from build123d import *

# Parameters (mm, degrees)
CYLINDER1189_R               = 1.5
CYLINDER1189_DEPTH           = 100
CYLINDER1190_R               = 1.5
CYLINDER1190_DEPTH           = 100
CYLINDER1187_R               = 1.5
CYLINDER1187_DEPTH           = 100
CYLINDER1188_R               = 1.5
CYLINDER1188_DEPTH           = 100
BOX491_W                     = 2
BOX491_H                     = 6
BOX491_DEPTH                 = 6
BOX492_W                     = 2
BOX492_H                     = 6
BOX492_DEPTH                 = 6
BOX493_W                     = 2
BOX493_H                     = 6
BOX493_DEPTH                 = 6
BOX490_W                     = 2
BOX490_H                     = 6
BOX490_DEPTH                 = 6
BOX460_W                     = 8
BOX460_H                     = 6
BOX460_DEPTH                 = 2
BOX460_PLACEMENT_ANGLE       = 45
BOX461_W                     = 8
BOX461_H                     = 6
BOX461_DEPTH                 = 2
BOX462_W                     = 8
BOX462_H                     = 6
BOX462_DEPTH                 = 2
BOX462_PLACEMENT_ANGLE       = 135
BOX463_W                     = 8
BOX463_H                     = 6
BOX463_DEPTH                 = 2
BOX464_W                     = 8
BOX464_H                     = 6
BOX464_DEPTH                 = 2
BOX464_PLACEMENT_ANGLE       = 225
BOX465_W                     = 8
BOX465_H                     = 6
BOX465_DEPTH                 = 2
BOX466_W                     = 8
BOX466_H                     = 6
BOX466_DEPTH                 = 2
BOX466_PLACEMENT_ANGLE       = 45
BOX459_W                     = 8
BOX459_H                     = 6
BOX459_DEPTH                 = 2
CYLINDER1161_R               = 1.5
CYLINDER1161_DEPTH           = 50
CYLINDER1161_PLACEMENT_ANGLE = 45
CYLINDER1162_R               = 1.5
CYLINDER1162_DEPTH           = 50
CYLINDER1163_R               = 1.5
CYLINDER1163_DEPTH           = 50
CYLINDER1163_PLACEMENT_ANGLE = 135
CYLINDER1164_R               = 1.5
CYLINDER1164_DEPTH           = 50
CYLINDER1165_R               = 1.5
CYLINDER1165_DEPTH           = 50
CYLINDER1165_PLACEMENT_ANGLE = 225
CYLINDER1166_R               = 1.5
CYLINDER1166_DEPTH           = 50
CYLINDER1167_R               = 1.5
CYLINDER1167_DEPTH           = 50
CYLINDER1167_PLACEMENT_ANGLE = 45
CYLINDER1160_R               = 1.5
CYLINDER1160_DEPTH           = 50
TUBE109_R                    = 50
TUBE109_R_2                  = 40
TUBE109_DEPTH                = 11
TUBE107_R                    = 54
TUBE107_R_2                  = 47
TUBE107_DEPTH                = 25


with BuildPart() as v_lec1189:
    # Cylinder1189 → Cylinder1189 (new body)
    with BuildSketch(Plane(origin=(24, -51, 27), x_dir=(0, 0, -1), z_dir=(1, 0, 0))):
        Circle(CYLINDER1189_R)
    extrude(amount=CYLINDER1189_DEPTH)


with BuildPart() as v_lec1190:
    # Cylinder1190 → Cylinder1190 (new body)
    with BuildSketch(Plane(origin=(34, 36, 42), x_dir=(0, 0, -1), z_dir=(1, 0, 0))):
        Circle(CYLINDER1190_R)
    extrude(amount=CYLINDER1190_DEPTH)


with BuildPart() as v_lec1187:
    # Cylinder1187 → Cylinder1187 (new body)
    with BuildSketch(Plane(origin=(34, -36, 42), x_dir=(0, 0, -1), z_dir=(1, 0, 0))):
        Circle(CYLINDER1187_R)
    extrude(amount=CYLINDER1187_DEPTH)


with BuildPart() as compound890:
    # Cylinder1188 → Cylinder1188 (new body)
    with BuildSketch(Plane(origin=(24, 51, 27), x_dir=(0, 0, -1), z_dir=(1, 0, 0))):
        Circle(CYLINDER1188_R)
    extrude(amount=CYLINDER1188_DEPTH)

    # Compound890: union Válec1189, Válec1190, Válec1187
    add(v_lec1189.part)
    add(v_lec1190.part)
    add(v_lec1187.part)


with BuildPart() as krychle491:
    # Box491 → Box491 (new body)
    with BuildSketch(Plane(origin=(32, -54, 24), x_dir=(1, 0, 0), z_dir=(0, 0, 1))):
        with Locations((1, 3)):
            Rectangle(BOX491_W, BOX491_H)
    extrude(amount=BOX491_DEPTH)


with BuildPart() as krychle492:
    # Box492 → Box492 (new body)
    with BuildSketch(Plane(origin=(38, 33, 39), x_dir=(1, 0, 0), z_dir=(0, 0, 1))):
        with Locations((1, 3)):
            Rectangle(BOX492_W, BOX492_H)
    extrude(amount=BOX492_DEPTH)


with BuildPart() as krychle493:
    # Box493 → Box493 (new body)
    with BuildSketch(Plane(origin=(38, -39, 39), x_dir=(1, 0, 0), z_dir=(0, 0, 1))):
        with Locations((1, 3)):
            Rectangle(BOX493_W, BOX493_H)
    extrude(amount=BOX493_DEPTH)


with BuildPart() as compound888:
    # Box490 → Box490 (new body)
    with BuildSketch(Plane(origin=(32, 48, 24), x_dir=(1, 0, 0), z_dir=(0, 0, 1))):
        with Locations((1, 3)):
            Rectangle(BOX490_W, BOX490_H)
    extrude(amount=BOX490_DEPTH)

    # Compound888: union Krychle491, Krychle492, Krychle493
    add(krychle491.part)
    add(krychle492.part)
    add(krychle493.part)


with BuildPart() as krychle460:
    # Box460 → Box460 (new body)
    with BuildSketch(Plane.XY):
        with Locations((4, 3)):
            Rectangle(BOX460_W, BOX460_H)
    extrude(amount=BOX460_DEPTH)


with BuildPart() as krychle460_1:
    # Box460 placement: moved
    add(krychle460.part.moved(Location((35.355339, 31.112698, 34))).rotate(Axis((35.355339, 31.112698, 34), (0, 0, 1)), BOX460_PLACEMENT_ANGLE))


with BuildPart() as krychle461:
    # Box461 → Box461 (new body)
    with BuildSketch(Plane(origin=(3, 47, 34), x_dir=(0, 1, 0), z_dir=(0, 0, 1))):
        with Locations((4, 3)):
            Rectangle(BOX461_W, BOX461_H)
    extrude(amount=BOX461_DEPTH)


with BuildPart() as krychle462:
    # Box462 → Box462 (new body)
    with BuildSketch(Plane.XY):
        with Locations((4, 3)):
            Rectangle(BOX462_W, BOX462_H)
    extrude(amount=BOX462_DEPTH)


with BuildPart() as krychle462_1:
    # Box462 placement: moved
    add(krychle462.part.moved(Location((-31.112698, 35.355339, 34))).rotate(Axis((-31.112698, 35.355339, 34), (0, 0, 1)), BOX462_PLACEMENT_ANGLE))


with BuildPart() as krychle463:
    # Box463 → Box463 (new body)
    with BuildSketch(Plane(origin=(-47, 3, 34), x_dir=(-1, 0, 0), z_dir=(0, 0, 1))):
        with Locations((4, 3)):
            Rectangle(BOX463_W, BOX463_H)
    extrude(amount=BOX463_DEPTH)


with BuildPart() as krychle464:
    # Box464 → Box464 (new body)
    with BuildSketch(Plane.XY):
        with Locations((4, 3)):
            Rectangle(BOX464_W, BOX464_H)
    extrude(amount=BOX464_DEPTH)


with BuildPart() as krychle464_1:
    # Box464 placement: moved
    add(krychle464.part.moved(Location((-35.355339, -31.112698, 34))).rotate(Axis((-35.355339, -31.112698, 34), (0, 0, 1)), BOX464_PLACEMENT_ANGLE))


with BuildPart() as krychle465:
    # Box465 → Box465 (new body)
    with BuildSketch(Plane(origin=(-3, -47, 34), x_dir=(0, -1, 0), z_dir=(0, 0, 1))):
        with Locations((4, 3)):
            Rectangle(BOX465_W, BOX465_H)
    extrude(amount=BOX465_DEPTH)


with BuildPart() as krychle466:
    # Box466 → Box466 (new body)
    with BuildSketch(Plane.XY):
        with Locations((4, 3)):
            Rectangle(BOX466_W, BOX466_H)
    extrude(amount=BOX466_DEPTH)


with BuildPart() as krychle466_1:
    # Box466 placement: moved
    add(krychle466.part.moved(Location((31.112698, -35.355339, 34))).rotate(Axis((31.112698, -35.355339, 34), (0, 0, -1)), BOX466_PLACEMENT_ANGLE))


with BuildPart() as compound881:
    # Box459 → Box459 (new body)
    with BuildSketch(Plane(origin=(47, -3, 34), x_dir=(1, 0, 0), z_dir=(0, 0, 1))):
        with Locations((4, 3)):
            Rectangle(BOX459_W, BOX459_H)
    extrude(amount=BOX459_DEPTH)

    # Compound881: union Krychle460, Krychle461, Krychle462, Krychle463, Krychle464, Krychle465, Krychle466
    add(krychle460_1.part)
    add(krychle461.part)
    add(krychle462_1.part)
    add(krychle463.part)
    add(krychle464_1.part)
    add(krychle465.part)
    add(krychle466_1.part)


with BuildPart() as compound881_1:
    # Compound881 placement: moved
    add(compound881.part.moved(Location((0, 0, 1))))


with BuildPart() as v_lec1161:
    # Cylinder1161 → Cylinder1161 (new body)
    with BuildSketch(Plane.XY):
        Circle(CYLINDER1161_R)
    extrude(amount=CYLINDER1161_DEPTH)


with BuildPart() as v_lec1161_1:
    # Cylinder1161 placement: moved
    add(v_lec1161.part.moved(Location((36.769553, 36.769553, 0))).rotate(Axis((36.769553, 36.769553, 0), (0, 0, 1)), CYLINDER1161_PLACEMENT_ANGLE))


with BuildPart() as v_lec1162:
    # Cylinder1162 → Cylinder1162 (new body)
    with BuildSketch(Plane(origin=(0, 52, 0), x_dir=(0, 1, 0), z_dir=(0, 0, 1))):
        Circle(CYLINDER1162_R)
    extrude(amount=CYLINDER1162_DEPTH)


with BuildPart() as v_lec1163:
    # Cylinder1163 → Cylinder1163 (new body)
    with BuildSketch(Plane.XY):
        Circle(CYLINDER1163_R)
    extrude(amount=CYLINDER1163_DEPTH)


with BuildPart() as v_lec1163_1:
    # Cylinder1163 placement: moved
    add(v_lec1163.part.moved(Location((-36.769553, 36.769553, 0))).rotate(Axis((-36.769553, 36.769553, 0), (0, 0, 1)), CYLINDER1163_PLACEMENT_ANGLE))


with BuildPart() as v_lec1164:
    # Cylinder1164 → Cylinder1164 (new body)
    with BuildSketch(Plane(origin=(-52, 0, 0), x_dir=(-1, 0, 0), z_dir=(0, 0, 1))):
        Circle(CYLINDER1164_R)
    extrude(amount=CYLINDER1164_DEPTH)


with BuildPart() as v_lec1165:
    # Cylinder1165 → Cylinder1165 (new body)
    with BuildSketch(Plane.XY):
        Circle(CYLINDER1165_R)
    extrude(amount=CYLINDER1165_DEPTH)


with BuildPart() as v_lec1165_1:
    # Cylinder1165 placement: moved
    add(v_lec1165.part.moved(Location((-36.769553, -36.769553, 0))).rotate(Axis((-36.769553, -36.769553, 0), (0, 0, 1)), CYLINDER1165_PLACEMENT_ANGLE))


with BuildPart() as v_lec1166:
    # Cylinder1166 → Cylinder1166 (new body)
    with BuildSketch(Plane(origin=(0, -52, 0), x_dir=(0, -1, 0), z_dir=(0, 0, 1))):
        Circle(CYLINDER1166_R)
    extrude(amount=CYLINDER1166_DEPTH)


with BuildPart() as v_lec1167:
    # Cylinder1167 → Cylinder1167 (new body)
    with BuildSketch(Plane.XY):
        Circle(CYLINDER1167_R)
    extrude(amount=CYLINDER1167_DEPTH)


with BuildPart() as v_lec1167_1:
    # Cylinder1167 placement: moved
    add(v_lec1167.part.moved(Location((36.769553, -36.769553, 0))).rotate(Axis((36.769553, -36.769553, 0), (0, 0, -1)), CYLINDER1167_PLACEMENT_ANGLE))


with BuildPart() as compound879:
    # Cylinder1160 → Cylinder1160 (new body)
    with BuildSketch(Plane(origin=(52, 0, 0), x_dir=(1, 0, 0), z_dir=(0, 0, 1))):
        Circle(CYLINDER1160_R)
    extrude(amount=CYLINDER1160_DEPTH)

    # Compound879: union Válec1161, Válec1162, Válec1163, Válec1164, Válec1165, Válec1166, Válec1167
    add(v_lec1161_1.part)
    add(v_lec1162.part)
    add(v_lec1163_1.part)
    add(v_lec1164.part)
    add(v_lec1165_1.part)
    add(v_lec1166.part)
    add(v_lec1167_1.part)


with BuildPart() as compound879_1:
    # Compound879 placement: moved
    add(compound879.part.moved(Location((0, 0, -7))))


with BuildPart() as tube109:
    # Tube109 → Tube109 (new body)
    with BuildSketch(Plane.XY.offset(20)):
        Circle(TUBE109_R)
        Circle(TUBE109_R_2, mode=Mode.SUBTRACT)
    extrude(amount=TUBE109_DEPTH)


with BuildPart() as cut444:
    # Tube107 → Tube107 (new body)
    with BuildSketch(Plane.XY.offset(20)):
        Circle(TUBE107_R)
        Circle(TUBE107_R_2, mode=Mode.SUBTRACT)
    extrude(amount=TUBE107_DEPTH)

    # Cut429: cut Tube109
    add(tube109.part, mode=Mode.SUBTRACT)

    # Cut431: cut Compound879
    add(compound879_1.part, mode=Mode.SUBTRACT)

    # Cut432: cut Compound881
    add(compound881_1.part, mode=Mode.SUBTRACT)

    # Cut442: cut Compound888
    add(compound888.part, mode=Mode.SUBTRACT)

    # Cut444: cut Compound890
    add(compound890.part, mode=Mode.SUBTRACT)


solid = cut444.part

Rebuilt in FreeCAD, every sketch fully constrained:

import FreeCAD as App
import Part
import Sketcher


def add_polygon(sketch, points):
    """Adds a closed chain of lines whose ends are joined by coincident constraints."""
    first, n = sketch.GeometryCount, len(points)
    for a, b in zip(points, points[1:] + points[:1]):
        sketch.addGeometry(Part.LineSegment(App.Vector(*a, 0), App.Vector(*b, 0)), False)
    for i in range(n):
        sketch.addConstraint(Sketcher.Constraint("Coincident", first + i, 2, first + (i + 1) % n, 1))

doc = App.newDocument("Part")
params = doc.addObject("Spreadsheet::Sheet", "Params")
for row, (alias, value) in enumerate([
    ("sketch1_diameter", "3 mm"),
    ("pad1_length", "100 mm"),
    ("sketch2_diameter", "3 mm"),
    ("pad2_length", "100 mm"),
    ("sketch3_diameter", "3 mm"),
    ("pad3_length", "100 mm"),
    ("sketch4_diameter", "3 mm"),
    ("pad4_length", "100 mm"),
    ("sketch5_width", "2 mm"),
    ("sketch5_height", "6 mm"),
    ("pad5_length", "6 mm"),
    ("sketch6_width", "2 mm"),
    ("sketch6_height", "6 mm"),
    ("pad6_length", "6 mm"),
    ("sketch7_width", "2 mm"),
    ("sketch7_height", "6 mm"),
    ("pad7_length", "6 mm"),
    ("sketch8_width", "2 mm"),
    ("sketch8_height", "6 mm"),
    ("pad8_length", "6 mm"),
    ("sketch9_width", "8 mm"),
    ("sketch9_height", "6 mm"),
    ("pad9_length", "2 mm"),
    ("sketch10_width", "6 mm"),
    ("sketch10_height", "8 mm"),
    ("pad10_length", "2 mm"),
    ("sketch11_width", "8 mm"),
    ("sketch11_height", "6 mm"),
    ("pad11_length", "2 mm"),
    ("sketch12_width", "8 mm"),
    ("sketch12_height", "6 mm"),
    ("pad12_length", "2 mm"),
    ("sketch13_width", "8 mm"),
    ("sketch13_height", "6 mm"),
    ("pad13_length", "2 mm"),
    ("sketch14_width", "6 mm"),
    ("sketch14_height", "8 mm"),
    ("pad14_length", "2 mm"),
    ("sketch15_width", "8 mm"),
    ("sketch15_height", "6 mm"),
    ("pad15_length", "2 mm"),
    ("sketch16_width", "8 mm"),
    ("sketch16_height", "6 mm"),
    ("pad16_length", "2 mm"),
    ("sketch17_diameter", "3 mm"),
    ("pad17_length", "50 mm"),
    ("sketch18_diameter", "3 mm"),
    ("pad18_length", "50 mm"),
    ("sketch19_diameter", "3 mm"),
    ("pad19_length", "50 mm"),
    ("sketch20_diameter", "3 mm"),
    ("pad20_length", "50 mm"),
    ("sketch21_diameter", "3 mm"),
    ("pad21_length", "50 mm"),
    ("sketch22_diameter", "3 mm"),
    ("pad22_length", "50 mm"),
    ("sketch23_diameter", "3 mm"),
    ("pad23_length", "50 mm"),
    ("sketch24_diameter", "3 mm"),
    ("pad24_length", "50 mm"),
    ("sketch25_diameter", "100 mm"),
    ("sketch25_diameter2", "80 mm"),
    ("pad25_length", "11 mm"),
    ("sketch26_diameter", "108 mm"),
    ("sketch26_diameter2", "94 mm"),
    ("pad26_length", "25 mm"),
], start=1):
    params.set(f"A{row}", alias)
    params.set(f"B{row}", "=" + value)
    params.setAlias(f"B{row}", alias)

body = doc.addObject("PartDesign::Body", "Body")

sketch1 = body.newObject("Sketcher::SketchObject", "Sketch")
sketch1.AttachmentSupport = (doc.getObject("YZ_Plane"), [""])
sketch1.MapMode = "FlatFace"
sketch1.AttachmentOffset = App.Placement(App.Vector(0, 0, 24), App.Rotation())
sketch1.addGeometry(Part.Circle(App.Vector(-51, 27, 0), App.Vector(0, 0, 1), 1.5), False)
sketch1.addConstraint(Sketcher.Constraint("Diameter", 0, 3.0))
sketch1.addConstraint(Sketcher.Constraint("DistanceX", 0, 3, -1, 1, 51.0))
sketch1.addConstraint(Sketcher.Constraint("DistanceY", -1, 1, 0, 3, 27.0))
sketch1.setExpression("Constraints[0]", "Params.sketch1_diameter")
pad1 = body.newObject("PartDesign::Pad", "Pad")
pad1.Profile = sketch1
pad1.setExpression("Length", "Params.pad1_length")
body2 = doc.addObject("PartDesign::Body", "Body001")

sketch2 = body2.newObject("Sketcher::SketchObject", "Sketch001")
sketch2.AttachmentSupport = (doc.getObject("YZ_Plane001"), [""])
sketch2.MapMode = "FlatFace"
sketch2.AttachmentOffset = App.Placement(App.Vector(0, 0, 34), App.Rotation())
sketch2.addGeometry(Part.Circle(App.Vector(36, 42, 0), App.Vector(0, 0, 1), 1.5), False)
sketch2.addConstraint(Sketcher.Constraint("Diameter", 0, 3.0))
sketch2.addConstraint(Sketcher.Constraint("DistanceX", -1, 1, 0, 3, 36.0))
sketch2.addConstraint(Sketcher.Constraint("DistanceY", -1, 1, 0, 3, 42.0))
sketch2.setExpression("Constraints[0]", "Params.sketch2_diameter")
pad2 = body2.newObject("PartDesign::Pad", "Pad001")
pad2.Profile = sketch2
pad2.setExpression("Length", "Params.pad2_length")
body3 = doc.addObject("PartDesign::Body", "Body002")

sketch3 = body3.newObject("Sketcher::SketchObject", "Sketch002")
sketch3.AttachmentSupport = (doc.getObject("YZ_Plane002"), [""])
sketch3.MapMode = "FlatFace"
sketch3.AttachmentOffset = App.Placement(App.Vector(0, 0, 34), App.Rotation())
sketch3.addGeometry(Part.Circle(App.Vector(-36, 42, 0), App.Vector(0, 0, 1), 1.5), False)
sketch3.addConstraint(Sketcher.Constraint("Diameter", 0, 3.0))
sketch3.addConstraint(Sketcher.Constraint("DistanceX", 0, 3, -1, 1, 36.0))
sketch3.addConstraint(Sketcher.Constraint("DistanceY", -1, 1, 0, 3, 42.0))
sketch3.setExpression("Constraints[0]", "Params.sketch3_diameter")
pad3 = body3.newObject("PartDesign::Pad", "Pad002")
pad3.Profile = sketch3
pad3.setExpression("Length", "Params.pad3_length")
body4 = doc.addObject("PartDesign::Body", "Body003")
body4.AllowCompound = True

sketch4 = body4.newObject("Sketcher::SketchObject", "Sketch003")
sketch4.AttachmentSupport = (doc.getObject("YZ_Plane003"), [""])
sketch4.MapMode = "FlatFace"
sketch4.AttachmentOffset = App.Placement(App.Vector(0, 0, 24), App.Rotation())
sketch4.addGeometry(Part.Circle(App.Vector(51, 27, 0), App.Vector(0, 0, 1), 1.5), False)
sketch4.addConstraint(Sketcher.Constraint("Diameter", 0, 3.0))
sketch4.addConstraint(Sketcher.Constraint("DistanceX", -1, 1, 0, 3, 51.0))
sketch4.addConstraint(Sketcher.Constraint("DistanceY", -1, 1, 0, 3, 27.0))
sketch4.setExpression("Constraints[0]", "Params.sketch4_diameter")
pad4 = body4.newObject("PartDesign::Pad", "Pad003")
pad4.Profile = sketch4
pad4.setExpression("Length", "Params.pad4_length")
doc.recompute()

boolean = body4.newObject("PartDesign::Boolean", "Boolean")
boolean.Type = "Fuse"
boolean.addObjects([body])
doc.recompute()

boolean2 = body4.newObject("PartDesign::Boolean", "Boolean001")
boolean2.Type = "Fuse"
boolean2.addObjects([body2])
doc.recompute()

boolean3 = body4.newObject("PartDesign::Boolean", "Boolean002")
boolean3.Type = "Fuse"
boolean3.addObjects([body3])
body5 = doc.addObject("PartDesign::Body", "Body004")

sketch5 = body5.newObject("Sketcher::SketchObject", "Sketch004")
sketch5.AttachmentSupport = (doc.getObject("XY_Plane004"), [""])
sketch5.MapMode = "FlatFace"
sketch5.AttachmentOffset = App.Placement(App.Vector(0, 0, 24), App.Rotation())
add_polygon(sketch5, [(32, -48), (32, -54), (34, -54), (34, -48)])
sketch5.addConstraint(Sketcher.Constraint("Vertical", 0))
sketch5.addConstraint(Sketcher.Constraint("Horizontal", 1))
sketch5.addConstraint(Sketcher.Constraint("Vertical", 2))
sketch5.addConstraint(Sketcher.Constraint("Horizontal", 3))
sketch5.addConstraint(Sketcher.Constraint("DistanceX", 1, 1, 1, 2, 2.0))
sketch5.addConstraint(Sketcher.Constraint("DistanceY", 0, 2, 0, 1, 6.0))
sketch5.addConstraint(Sketcher.Constraint("DistanceX", -1, 1, 0, 2, 32.0))
sketch5.addConstraint(Sketcher.Constraint("DistanceY", 0, 2, -1, 1, 54.0))
sketch5.setExpression("Constraints[8]", "Params.sketch5_width")
sketch5.setExpression("Constraints[9]", "Params.sketch5_height")
pad5 = body5.newObject("PartDesign::Pad", "Pad004")
pad5.Profile = sketch5
pad5.setExpression("Length", "Params.pad5_length")
body6 = doc.addObject("PartDesign::Body", "Body005")

sketch6 = body6.newObject("Sketcher::SketchObject", "Sketch005")
sketch6.AttachmentSupport = (doc.getObject("XY_Plane005"), [""])
sketch6.MapMode = "FlatFace"
sketch6.AttachmentOffset = App.Placement(App.Vector(0, 0, 39), App.Rotation())
add_polygon(sketch6, [(38, 39), (38, 33), (40, 33), (40, 39)])
sketch6.addConstraint(Sketcher.Constraint("Vertical", 0))
sketch6.addConstraint(Sketcher.Constraint("Horizontal", 1))
sketch6.addConstraint(Sketcher.Constraint("Vertical", 2))
sketch6.addConstraint(Sketcher.Constraint("Horizontal", 3))
sketch6.addConstraint(Sketcher.Constraint("DistanceX", 1, 1, 1, 2, 2.0))
sketch6.addConstraint(Sketcher.Constraint("DistanceY", 0, 2, 0, 1, 6.0))
sketch6.addConstraint(Sketcher.Constraint("DistanceX", -1, 1, 0, 2, 38.0))
sketch6.addConstraint(Sketcher.Constraint("DistanceY", -1, 1, 0, 2, 33.0))
sketch6.setExpression("Constraints[8]", "Params.sketch6_width")
sketch6.setExpression("Constraints[9]", "Params.sketch6_height")
pad6 = body6.newObject("PartDesign::Pad", "Pad005")
pad6.Profile = sketch6
pad6.setExpression("Length", "Params.pad6_length")
body7 = doc.addObject("PartDesign::Body", "Body006")

sketch7 = body7.newObject("Sketcher::SketchObject", "Sketch006")
sketch7.AttachmentSupport = (doc.getObject("XY_Plane006"), [""])
sketch7.MapMode = "FlatFace"
sketch7.AttachmentOffset = App.Placement(App.Vector(0, 0, 39), App.Rotation())
add_polygon(sketch7, [(38, -33), (38, -39), (40, -39), (40, -33)])
sketch7.addConstraint(Sketcher.Constraint("Vertical", 0))
sketch7.addConstraint(Sketcher.Constraint("Horizontal", 1))
sketch7.addConstraint(Sketcher.Constraint("Vertical", 2))
sketch7.addConstraint(Sketcher.Constraint("Horizontal", 3))
sketch7.addConstraint(Sketcher.Constraint("DistanceX", 1, 1, 1, 2, 2.0))
sketch7.addConstraint(Sketcher.Constraint("DistanceY", 0, 2, 0, 1, 6.0))
sketch7.addConstraint(Sketcher.Constraint("DistanceX", -1, 1, 0, 2, 38.0))
sketch7.addConstraint(Sketcher.Constraint("DistanceY", 0, 2, -1, 1, 39.0))
sketch7.setExpression("Constraints[8]", "Params.sketch7_width")
sketch7.setExpression("Constraints[9]", "Params.sketch7_height")
pad7 = body7.newObject("PartDesign::Pad", "Pad006")
pad7.Profile = sketch7
pad7.setExpression("Length", "Params.pad7_length")
body8 = doc.addObject("PartDesign::Body", "Body007")
body8.AllowCompound = True

sketch8 = body8.newObject("Sketcher::SketchObject", "Sketch007")
sketch8.AttachmentSupport = (doc.getObject("XY_Plane007"), [""])
sketch8.MapMode = "FlatFace"
sketch8.AttachmentOffset = App.Placement(App.Vector(0, 0, 24), App.Rotation())
add_polygon(sketch8, [(32, 54), (32, 48), (34, 48), (34, 54)])
sketch8.addConstraint(Sketcher.Constraint("Vertical", 0))
sketch8.addConstraint(Sketcher.Constraint("Horizontal", 1))
sketch8.addConstraint(Sketcher.Constraint("Vertical", 2))
sketch8.addConstraint(Sketcher.Constraint("Horizontal", 3))
sketch8.addConstraint(Sketcher.Constraint("DistanceX", 1, 1, 1, 2, 2.0))
sketch8.addConstraint(Sketcher.Constraint("DistanceY", 0, 2, 0, 1, 6.0))
sketch8.addConstraint(Sketcher.Constraint("DistanceX", -1, 1, 0, 2, 32.0))
sketch8.addConstraint(Sketcher.Constraint("DistanceY", -1, 1, 0, 2, 48.0))
sketch8.setExpression("Constraints[8]", "Params.sketch8_width")
sketch8.setExpression("Constraints[9]", "Params.sketch8_height")
pad8 = body8.newObject("PartDesign::Pad", "Pad007")
pad8.Profile = sketch8
pad8.setExpression("Length", "Params.pad8_length")
doc.recompute()

boolean4 = body8.newObject("PartDesign::Boolean", "Boolean003")
boolean4.Type = "Fuse"
boolean4.addObjects([body5])
doc.recompute()

boolean5 = body8.newObject("PartDesign::Boolean", "Boolean004")
boolean5.Type = "Fuse"
boolean5.addObjects([body6])
doc.recompute()

boolean6 = body8.newObject("PartDesign::Boolean", "Boolean005")
boolean6.Type = "Fuse"
boolean6.addObjects([body7])
body9 = doc.addObject("PartDesign::Body", "Body008")

sketch9 = body9.newObject("Sketcher::SketchObject", "Sketch008")
sketch9.AttachmentSupport = (doc.getObject("XY_Plane008"), [""])
sketch9.MapMode = "FlatFace"
add_polygon(sketch9, [(0, 6), (0, 0), (8, 0), (8, 6)])
sketch9.addConstraint(Sketcher.Constraint("Vertical", 0))
sketch9.addConstraint(Sketcher.Constraint("Horizontal", 1))
sketch9.addConstraint(Sketcher.Constraint("Vertical", 2))
sketch9.addConstraint(Sketcher.Constraint("Horizontal", 3))
sketch9.addConstraint(Sketcher.Constraint("Coincident", 0, 2, -1, 1))
sketch9.addConstraint(Sketcher.Constraint("DistanceX", 1, 1, 1, 2, 8.0))
sketch9.addConstraint(Sketcher.Constraint("DistanceY", 0, 2, 0, 1, 6.0))
sketch9.setExpression("Constraints[9]", "Params.sketch9_width")
sketch9.setExpression("Constraints[10]", "Params.sketch9_height")
pad9 = body9.newObject("PartDesign::Pad", "Pad008")
pad9.Profile = sketch9
pad9.setExpression("Length", "Params.pad9_length")
body10 = doc.addObject("PartDesign::Body", "Body009")
doc.recompute()

body9.Placement = App.Placement(App.Vector(35.355339, 31.112698, 34), App.Rotation(App.Vector(0, 0, 1), 45))
boolean7 = body10.newObject("PartDesign::Boolean", "Boolean006")
boolean7.Type = "Fuse"
boolean7.addObjects([body9])
body11 = doc.addObject("PartDesign::Body", "Body010")

sketch10 = body11.newObject("Sketcher::SketchObject", "Sketch009")
sketch10.AttachmentSupport = (doc.getObject("XY_Plane010"), [""])
sketch10.MapMode = "FlatFace"
sketch10.AttachmentOffset = App.Placement(App.Vector(0, 0, 34), App.Rotation())
add_polygon(sketch10, [(-3, 47), (3, 47), (3, 55), (-3, 55)])
sketch10.addConstraint(Sketcher.Constraint("Horizontal", 0))
sketch10.addConstraint(Sketcher.Constraint("Vertical", 1))
sketch10.addConstraint(Sketcher.Constraint("Horizontal", 2))
sketch10.addConstraint(Sketcher.Constraint("Vertical", 3))
sketch10.addConstraint(Sketcher.Constraint("DistanceX", 0, 1, 0, 2, 6.0))
sketch10.addConstraint(Sketcher.Constraint("DistanceY", 1, 1, 1, 2, 8.0))
sketch10.addConstraint(Sketcher.Constraint("DistanceX", -1, 1, 0, 2, 3.0))
sketch10.addConstraint(Sketcher.Constraint("DistanceY", -1, 1, 0, 2, 47.0))
sketch10.setExpression("Constraints[8]", "Params.sketch10_width")
sketch10.setExpression("Constraints[9]", "Params.sketch10_height")
pad10 = body11.newObject("PartDesign::Pad", "Pad009")
pad10.Profile = sketch10
pad10.setExpression("Length", "Params.pad10_length")
body12 = doc.addObject("PartDesign::Body", "Body011")

sketch11 = body12.newObject("Sketcher::SketchObject", "Sketch010")
sketch11.AttachmentSupport = (doc.getObject("XY_Plane011"), [""])
sketch11.MapMode = "FlatFace"
add_polygon(sketch11, [(0, 6), (0, 0), (8, 0), (8, 6)])
sketch11.addConstraint(Sketcher.Constraint("Vertical", 0))
sketch11.addConstraint(Sketcher.Constraint("Horizontal", 1))
sketch11.addConstraint(Sketcher.Constraint("Vertical", 2))
sketch11.addConstraint(Sketcher.Constraint("Horizontal", 3))
sketch11.addConstraint(Sketcher.Constraint("Coincident", 0, 2, -1, 1))
sketch11.addConstraint(Sketcher.Constraint("DistanceX", 1, 1, 1, 2, 8.0))
sketch11.addConstraint(Sketcher.Constraint("DistanceY", 0, 2, 0, 1, 6.0))
sketch11.setExpression("Constraints[9]", "Params.sketch11_width")
sketch11.setExpression("Constraints[10]", "Params.sketch11_height")
pad11 = body12.newObject("PartDesign::Pad", "Pad010")
pad11.Profile = sketch11
pad11.setExpression("Length", "Params.pad11_length")
body13 = doc.addObject("PartDesign::Body", "Body012")
doc.recompute()

body12.Placement = App.Placement(App.Vector(-31.112698, 35.355339, 34), App.Rotation(App.Vector(0, 0, 1), 135))
boolean8 = body13.newObject("PartDesign::Boolean", "Boolean007")
boolean8.Type = "Fuse"
boolean8.addObjects([body12])
body14 = doc.addObject("PartDesign::Body", "Body013")

sketch12 = body14.newObject("Sketcher::SketchObject", "Sketch011")
sketch12.AttachmentSupport = (doc.getObject("XY_Plane013"), [""])
sketch12.MapMode = "FlatFace"
sketch12.AttachmentOffset = App.Placement(App.Vector(0, 0, 34), App.Rotation())
add_polygon(sketch12, [(-47, -3), (-47, 3), (-55, 3), (-55, -3)])
sketch12.addConstraint(Sketcher.Constraint("Vertical", 0))
sketch12.addConstraint(Sketcher.Constraint("Horizontal", 1))
sketch12.addConstraint(Sketcher.Constraint("Vertical", 2))
sketch12.addConstraint(Sketcher.Constraint("Horizontal", 3))
sketch12.addConstraint(Sketcher.Constraint("DistanceX", 1, 2, 1, 1, 8.0))
sketch12.addConstraint(Sketcher.Constraint("DistanceY", 0, 1, 0, 2, 6.0))
sketch12.addConstraint(Sketcher.Constraint("DistanceX", 0, 2, -1, 1, 47.0))
sketch12.addConstraint(Sketcher.Constraint("DistanceY", -1, 1, 0, 2, 3.0))
sketch12.setExpression("Constraints[8]", "Params.sketch12_width")
sketch12.setExpression("Constraints[9]", "Params.sketch12_height")
pad12 = body14.newObject("PartDesign::Pad", "Pad011")
pad12.Profile = sketch12
pad12.setExpression("Length", "Params.pad12_length")
body15 = doc.addObject("PartDesign::Body", "Body014")

sketch13 = body15.newObject("Sketcher::SketchObject", "Sketch012")
sketch13.AttachmentSupport = (doc.getObject("XY_Plane014"), [""])
sketch13.MapMode = "FlatFace"
add_polygon(sketch13, [(0, 6), (0, 0), (8, 0), (8, 6)])
sketch13.addConstraint(Sketcher.Constraint("Vertical", 0))
sketch13.addConstraint(Sketcher.Constraint("Horizontal", 1))
sketch13.addConstraint(Sketcher.Constraint("Vertical", 2))
sketch13.addConstraint(Sketcher.Constraint("Horizontal", 3))
sketch13.addConstraint(Sketcher.Constraint("Coincident", 0, 2, -1, 1))
sketch13.addConstraint(Sketcher.Constraint("DistanceX", 1, 1, 1, 2, 8.0))
sketch13.addConstraint(Sketcher.Constraint("DistanceY", 0, 2, 0, 1, 6.0))
sketch13.setExpression("Constraints[9]", "Params.sketch13_width")
sketch13.setExpression("Constraints[10]", "Params.sketch13_height")
pad13 = body15.newObject("PartDesign::Pad", "Pad012")
pad13.Profile = sketch13
pad13.setExpression("Length", "Params.pad13_length")
body16 = doc.addObject("PartDesign::Body", "Body015")
doc.recompute()

body15.Placement = App.Placement(App.Vector(-35.355339, -31.112698, 34), App.Rotation(App.Vector(0, 0, 1), 225))
boolean9 = body16.newObject("PartDesign::Boolean", "Boolean008")
boolean9.Type = "Fuse"
boolean9.addObjects([body15])
body17 = doc.addObject("PartDesign::Body", "Body016")

sketch14 = body17.newObject("Sketcher::SketchObject", "Sketch013")
sketch14.AttachmentSupport = (doc.getObject("XY_Plane016"), [""])
sketch14.MapMode = "FlatFace"
sketch14.AttachmentOffset = App.Placement(App.Vector(0, 0, 34), App.Rotation())
add_polygon(sketch14, [(3, -47), (-3, -47), (-3, -55), (3, -55)])
sketch14.addConstraint(Sketcher.Constraint("Horizontal", 0))
sketch14.addConstraint(Sketcher.Constraint("Vertical", 1))
sketch14.addConstraint(Sketcher.Constraint("Horizontal", 2))
sketch14.addConstraint(Sketcher.Constraint("Vertical", 3))
sketch14.addConstraint(Sketcher.Constraint("DistanceX", 0, 2, 0, 1, 6.0))
sketch14.addConstraint(Sketcher.Constraint("DistanceY", 1, 2, 1, 1, 8.0))
sketch14.addConstraint(Sketcher.Constraint("DistanceX", 0, 2, -1, 1, 3.0))
sketch14.addConstraint(Sketcher.Constraint("DistanceY", 0, 2, -1, 1, 47.0))
sketch14.setExpression("Constraints[8]", "Params.sketch14_width")
sketch14.setExpression("Constraints[9]", "Params.sketch14_height")
pad14 = body17.newObject("PartDesign::Pad", "Pad013")
pad14.Profile = sketch14
pad14.setExpression("Length", "Params.pad14_length")
body18 = doc.addObject("PartDesign::Body", "Body017")

sketch15 = body18.newObject("Sketcher::SketchObject", "Sketch014")
sketch15.AttachmentSupport = (doc.getObject("XY_Plane017"), [""])
sketch15.MapMode = "FlatFace"
add_polygon(sketch15, [(0, 6), (0, 0), (8, 0), (8, 6)])
sketch15.addConstraint(Sketcher.Constraint("Vertical", 0))
sketch15.addConstraint(Sketcher.Constraint("Horizontal", 1))
sketch15.addConstraint(Sketcher.Constraint("Vertical", 2))
sketch15.addConstraint(Sketcher.Constraint("Horizontal", 3))
sketch15.addConstraint(Sketcher.Constraint("Coincident", 0, 2, -1, 1))
sketch15.addConstraint(Sketcher.Constraint("DistanceX", 1, 1, 1, 2, 8.0))
sketch15.addConstraint(Sketcher.Constraint("DistanceY", 0, 2, 0, 1, 6.0))
sketch15.setExpression("Constraints[9]", "Params.sketch15_width")
sketch15.setExpression("Constraints[10]", "Params.sketch15_height")
pad15 = body18.newObject("PartDesign::Pad", "Pad014")
pad15.Profile = sketch15
pad15.setExpression("Length", "Params.pad15_length")
body19 = doc.addObject("PartDesign::Body", "Body018")
doc.recompute()

body18.Placement = App.Placement(App.Vector(31.112698, -35.355339, 34), App.Rotation(App.Vector(0, 0, -1), 45))
boolean10 = body19.newObject("PartDesign::Boolean", "Boolean009")
boolean10.Type = "Fuse"
boolean10.addObjects([body18])
body20 = doc.addObject("PartDesign::Body", "Body019")
body20.AllowCompound = True

sketch16 = body20.newObject("Sketcher::SketchObject", "Sketch015")
sketch16.AttachmentSupport = (doc.getObject("XY_Plane019"), [""])
sketch16.MapMode = "FlatFace"
sketch16.AttachmentOffset = App.Placement(App.Vector(0, 0, 34), App.Rotation())
add_polygon(sketch16, [(47, 3), (47, -3), (55, -3), (55, 3)])
sketch16.addConstraint(Sketcher.Constraint("Vertical", 0))
sketch16.addConstraint(Sketcher.Constraint("Horizontal", 1))
sketch16.addConstraint(Sketcher.Constraint("Vertical", 2))
sketch16.addConstraint(Sketcher.Constraint("Horizontal", 3))
sketch16.addConstraint(Sketcher.Constraint("DistanceX", 1, 1, 1, 2, 8.0))
sketch16.addConstraint(Sketcher.Constraint("DistanceY", 0, 2, 0, 1, 6.0))
sketch16.addConstraint(Sketcher.Constraint("DistanceX", -1, 1, 0, 2, 47.0))
sketch16.addConstraint(Sketcher.Constraint("DistanceY", 0, 2, -1, 1, 3.0))
sketch16.setExpression("Constraints[8]", "Params.sketch16_width")
sketch16.setExpression("Constraints[9]", "Params.sketch16_height")
pad16 = body20.newObject("PartDesign::Pad", "Pad015")
pad16.Profile = sketch16
pad16.setExpression("Length", "Params.pad16_length")
doc.recompute()

boolean11 = body20.newObject("PartDesign::Boolean", "Boolean010")
boolean11.Type = "Fuse"
boolean11.addObjects([body10])
doc.recompute()

boolean12 = body20.newObject("PartDesign::Boolean", "Boolean011")
boolean12.Type = "Fuse"
boolean12.addObjects([body11])
doc.recompute()

boolean13 = body20.newObject("PartDesign::Boolean", "Boolean012")
boolean13.Type = "Fuse"
boolean13.addObjects([body13])
doc.recompute()

boolean14 = body20.newObject("PartDesign::Boolean", "Boolean013")
boolean14.Type = "Fuse"
boolean14.addObjects([body14])
doc.recompute()

boolean15 = body20.newObject("PartDesign::Boolean", "Boolean014")
boolean15.Type = "Fuse"
boolean15.addObjects([body16])
doc.recompute()

boolean16 = body20.newObject("PartDesign::Boolean", "Boolean015")
boolean16.Type = "Fuse"
boolean16.addObjects([body17])
doc.recompute()

boolean17 = body20.newObject("PartDesign::Boolean", "Boolean016")
boolean17.Type = "Fuse"
boolean17.addObjects([body19])
body21 = doc.addObject("PartDesign::Body", "Body020")
body21.AllowCompound = True
doc.recompute()

body20.Placement = App.Placement(App.Vector(0, 0, 1), App.Rotation(App.Vector(0, 0, 1), 0))
boolean18 = body21.newObject("PartDesign::Boolean", "Boolean017")
boolean18.Type = "Fuse"
boolean18.addObjects([body20])
body22 = doc.addObject("PartDesign::Body", "Body021")

sketch17 = body22.newObject("Sketcher::SketchObject", "Sketch016")
sketch17.AttachmentSupport = (doc.getObject("XY_Plane021"), [""])
sketch17.MapMode = "FlatFace"
sketch17.addGeometry(Part.Circle(App.Vector(0, 0, 0), App.Vector(0, 0, 1), 1.5), False)
sketch17.addConstraint(Sketcher.Constraint("Coincident", 0, 3, -1, 1))
sketch17.addConstraint(Sketcher.Constraint("Diameter", 0, 3.0))
sketch17.setExpression("Constraints[1]", "Params.sketch17_diameter")
pad17 = body22.newObject("PartDesign::Pad", "Pad016")
pad17.Profile = sketch17
pad17.setExpression("Length", "Params.pad17_length")
body23 = doc.addObject("PartDesign::Body", "Body022")
doc.recompute()

body22.Placement = App.Placement(App.Vector(36.769553, 36.769553, 0), App.Rotation(App.Vector(0, 0, 1), 45))
boolean19 = body23.newObject("PartDesign::Boolean", "Boolean018")
boolean19.Type = "Fuse"
boolean19.addObjects([body22])
body24 = doc.addObject("PartDesign::Body", "Body023")

sketch18 = body24.newObject("Sketcher::SketchObject", "Sketch017")
sketch18.AttachmentSupport = (doc.getObject("XY_Plane023"), [""])
sketch18.MapMode = "FlatFace"
sketch18.addGeometry(Part.Circle(App.Vector(0, 52, 0), App.Vector(0, 0, 1), 1.5), False)
sketch18.addConstraint(Sketcher.Constraint("PointOnObject", 0, 3, -2))
sketch18.addConstraint(Sketcher.Constraint("Diameter", 0, 3.0))
sketch18.addConstraint(Sketcher.Constraint("DistanceY", -1, 1, 0, 3, 52.0))
sketch18.setExpression("Constraints[1]", "Params.sketch18_diameter")
pad18 = body24.newObject("PartDesign::Pad", "Pad017")
pad18.Profile = sketch18
pad18.setExpression("Length", "Params.pad18_length")
body25 = doc.addObject("PartDesign::Body", "Body024")

sketch19 = body25.newObject("Sketcher::SketchObject", "Sketch018")
sketch19.AttachmentSupport = (doc.getObject("XY_Plane024"), [""])
sketch19.MapMode = "FlatFace"
sketch19.addGeometry(Part.Circle(App.Vector(0, 0, 0), App.Vector(0, 0, 1), 1.5), False)
sketch19.addConstraint(Sketcher.Constraint("Coincident", 0, 3, -1, 1))
sketch19.addConstraint(Sketcher.Constraint("Diameter", 0, 3.0))
sketch19.setExpression("Constraints[1]", "Params.sketch19_diameter")
pad19 = body25.newObject("PartDesign::Pad", "Pad018")
pad19.Profile = sketch19
pad19.setExpression("Length", "Params.pad19_length")
body26 = doc.addObject("PartDesign::Body", "Body025")
doc.recompute()

body25.Placement = App.Placement(App.Vector(-36.769553, 36.769553, 0), App.Rotation(App.Vector(0, 0, 1), 135))
boolean20 = body26.newObject("PartDesign::Boolean", "Boolean019")
boolean20.Type = "Fuse"
boolean20.addObjects([body25])
body27 = doc.addObject("PartDesign::Body", "Body026")

sketch20 = body27.newObject("Sketcher::SketchObject", "Sketch019")
sketch20.AttachmentSupport = (doc.getObject("XY_Plane026"), [""])
sketch20.MapMode = "FlatFace"
sketch20.addGeometry(Part.Circle(App.Vector(-52, 0, 0), App.Vector(0, 0, 1), 1.5), False)
sketch20.addConstraint(Sketcher.Constraint("PointOnObject", 0, 3, -1))
sketch20.addConstraint(Sketcher.Constraint("Diameter", 0, 3.0))
sketch20.addConstraint(Sketcher.Constraint("DistanceX", 0, 3, -1, 1, 52.0))
sketch20.setExpression("Constraints[1]", "Params.sketch20_diameter")
pad20 = body27.newObject("PartDesign::Pad", "Pad019")
pad20.Profile = sketch20
pad20.setExpression("Length", "Params.pad20_length")
body28 = doc.addObject("PartDesign::Body", "Body027")

sketch21 = body28.newObject("Sketcher::SketchObject", "Sketch020")
sketch21.AttachmentSupport = (doc.getObject("XY_Plane027"), [""])
sketch21.MapMode = "FlatFace"
sketch21.addGeometry(Part.Circle(App.Vector(0, 0, 0), App.Vector(0, 0, 1), 1.5), False)
sketch21.addConstraint(Sketcher.Constraint("Coincident", 0, 3, -1, 1))
sketch21.addConstraint(Sketcher.Constraint("Diameter", 0, 3.0))
sketch21.setExpression("Constraints[1]", "Params.sketch21_diameter")
pad21 = body28.newObject("PartDesign::Pad", "Pad020")
pad21.Profile = sketch21
pad21.setExpression("Length", "Params.pad21_length")
body29 = doc.addObject("PartDesign::Body", "Body028")
doc.recompute()

body28.Placement = App.Placement(App.Vector(-36.769553, -36.769553, 0), App.Rotation(App.Vector(0, 0, 1), 225))
boolean21 = body29.newObject("PartDesign::Boolean", "Boolean020")
boolean21.Type = "Fuse"
boolean21.addObjects([body28])
body30 = doc.addObject("PartDesign::Body", "Body029")

sketch22 = body30.newObject("Sketcher::SketchObject", "Sketch021")
sketch22.AttachmentSupport = (doc.getObject("XY_Plane029"), [""])
sketch22.MapMode = "FlatFace"
sketch22.addGeometry(Part.Circle(App.Vector(0, -52, 0), App.Vector(0, 0, 1), 1.5), False)
sketch22.addConstraint(Sketcher.Constraint("PointOnObject", 0, 3, -2))
sketch22.addConstraint(Sketcher.Constraint("Diameter", 0, 3.0))
sketch22.addConstraint(Sketcher.Constraint("DistanceY", 0, 3, -1, 1, 52.0))
sketch22.setExpression("Constraints[1]", "Params.sketch22_diameter")
pad22 = body30.newObject("PartDesign::Pad", "Pad021")
pad22.Profile = sketch22
pad22.setExpression("Length", "Params.pad22_length")
body31 = doc.addObject("PartDesign::Body", "Body030")

sketch23 = body31.newObject("Sketcher::SketchObject", "Sketch022")
sketch23.AttachmentSupport = (doc.getObject("XY_Plane030"), [""])
sketch23.MapMode = "FlatFace"
sketch23.addGeometry(Part.Circle(App.Vector(0, 0, 0), App.Vector(0, 0, 1), 1.5), False)
sketch23.addConstraint(Sketcher.Constraint("Coincident", 0, 3, -1, 1))
sketch23.addConstraint(Sketcher.Constraint("Diameter", 0, 3.0))
sketch23.setExpression("Constraints[1]", "Params.sketch23_diameter")
pad23 = body31.newObject("PartDesign::Pad", "Pad022")
pad23.Profile = sketch23
pad23.setExpression("Length", "Params.pad23_length")
body32 = doc.addObject("PartDesign::Body", "Body031")
doc.recompute()

body31.Placement = App.Placement(App.Vector(36.769553, -36.769553, 0), App.Rotation(App.Vector(0, 0, -1), 45))
boolean22 = body32.newObject("PartDesign::Boolean", "Boolean021")
boolean22.Type = "Fuse"
boolean22.addObjects([body31])
body33 = doc.addObject("PartDesign::Body", "Body032")
body33.AllowCompound = True

sketch24 = body33.newObject("Sketcher::SketchObject", "Sketch023")
sketch24.AttachmentSupport = (doc.getObject("XY_Plane032"), [""])
sketch24.MapMode = "FlatFace"
sketch24.addGeometry(Part.Circle(App.Vector(52, 0, 0), App.Vector(0, 0, 1), 1.5), False)
sketch24.addConstraint(Sketcher.Constraint("PointOnObject", 0, 3, -1))
sketch24.addConstraint(Sketcher.Constraint("Diameter", 0, 3.0))
sketch24.addConstraint(Sketcher.Constraint("DistanceX", -1, 1, 0, 3, 52.0))
sketch24.setExpression("Constraints[1]", "Params.sketch24_diameter")
pad24 = body33.newObject("PartDesign::Pad", "Pad023")
pad24.Profile = sketch24
pad24.setExpression("Length", "Params.pad24_length")
doc.recompute()

boolean23 = body33.newObject("PartDesign::Boolean", "Boolean022")
boolean23.Type = "Fuse"
boolean23.addObjects([body23])
doc.recompute()

boolean24 = body33.newObject("PartDesign::Boolean", "Boolean023")
boolean24.Type = "Fuse"
boolean24.addObjects([body24])
doc.recompute()

boolean25 = body33.newObject("PartDesign::Boolean", "Boolean024")
boolean25.Type = "Fuse"
boolean25.addObjects([body26])
doc.recompute()

boolean26 = body33.newObject("PartDesign::Boolean", "Boolean025")
boolean26.Type = "Fuse"
boolean26.addObjects([body27])
doc.recompute()

boolean27 = body33.newObject("PartDesign::Boolean", "Boolean026")
boolean27.Type = "Fuse"
boolean27.addObjects([body29])
doc.recompute()

boolean28 = body33.newObject("PartDesign::Boolean", "Boolean027")
boolean28.Type = "Fuse"
boolean28.addObjects([body30])
doc.recompute()

boolean29 = body33.newObject("PartDesign::Boolean", "Boolean028")
boolean29.Type = "Fuse"
boolean29.addObjects([body32])
body34 = doc.addObject("PartDesign::Body", "Body033")
body34.AllowCompound = True
doc.recompute()

body33.Placement = App.Placement(App.Vector(0, 0, -7), App.Rotation(App.Vector(0, 0, 1), 0))
boolean30 = body34.newObject("PartDesign::Boolean", "Boolean029")
boolean30.Type = "Fuse"
boolean30.addObjects([body33])
body35 = doc.addObject("PartDesign::Body", "Body034")

sketch25 = body35.newObject("Sketcher::SketchObject", "Sketch024")
sketch25.AttachmentSupport = (doc.getObject("XY_Plane034"), [""])
sketch25.MapMode = "FlatFace"
sketch25.AttachmentOffset = App.Placement(App.Vector(0, 0, 20), App.Rotation())
sketch25.addGeometry(Part.Circle(App.Vector(0, 0, 0), App.Vector(0, 0, 1), 50), False)
sketch25.addGeometry(Part.Circle(App.Vector(0, 0, 0), App.Vector(0, 0, 1), 40), False)
sketch25.addConstraint(Sketcher.Constraint("Coincident", 0, 3, -1, 1))
sketch25.addConstraint(Sketcher.Constraint("Coincident", 1, 3, -1, 1))
sketch25.addConstraint(Sketcher.Constraint("Diameter", 0, 100.0))
sketch25.addConstraint(Sketcher.Constraint("Diameter", 1, 80.0))
sketch25.setExpression("Constraints[2]", "Params.sketch25_diameter")
sketch25.setExpression("Constraints[3]", "Params.sketch25_diameter2")
pad25 = body35.newObject("PartDesign::Pad", "Pad024")
pad25.Profile = sketch25
pad25.setExpression("Length", "Params.pad25_length")
body36 = doc.addObject("PartDesign::Body", "Body035")

sketch26 = body36.newObject("Sketcher::SketchObject", "Sketch025")
sketch26.AttachmentSupport = (doc.getObject("XY_Plane035"), [""])
sketch26.MapMode = "FlatFace"
sketch26.AttachmentOffset = App.Placement(App.Vector(0, 0, 20), App.Rotation())
sketch26.addGeometry(Part.Circle(App.Vector(0, 0, 0), App.Vector(0, 0, 1), 54), False)
sketch26.addGeometry(Part.Circle(App.Vector(0, 0, 0), App.Vector(0, 0, 1), 47), False)
sketch26.addConstraint(Sketcher.Constraint("Coincident", 0, 3, -1, 1))
sketch26.addConstraint(Sketcher.Constraint("Coincident", 1, 3, -1, 1))
sketch26.addConstraint(Sketcher.Constraint("Diameter", 0, 108.0))
sketch26.addConstraint(Sketcher.Constraint("Diameter", 1, 94.0))
sketch26.setExpression("Constraints[2]", "Params.sketch26_diameter")
sketch26.setExpression("Constraints[3]", "Params.sketch26_diameter2")
pad26 = body36.newObject("PartDesign::Pad", "Pad025")
pad26.Profile = sketch26
pad26.setExpression("Length", "Params.pad26_length")
doc.recompute()

boolean31 = body36.newObject("PartDesign::Boolean", "Boolean030")
boolean31.Type = "Cut"
boolean31.addObjects([body35])
doc.recompute()

boolean32 = body36.newObject("PartDesign::Boolean", "Boolean031")
boolean32.Type = "Cut"
boolean32.addObjects([body34])
doc.recompute()

boolean33 = body36.newObject("PartDesign::Boolean", "Boolean032")
boolean33.Type = "Cut"
boolean33.addObjects([body21])
doc.recompute()

boolean34 = body36.newObject("PartDesign::Boolean", "Boolean033")
boolean34.Type = "Cut"
boolean34.addObjects([body8])
doc.recompute()

boolean35 = body36.newObject("PartDesign::Boolean", "Boolean034")
boolean35.Type = "Cut"
boolean35.addObjects([body4])

doc.recompute()
